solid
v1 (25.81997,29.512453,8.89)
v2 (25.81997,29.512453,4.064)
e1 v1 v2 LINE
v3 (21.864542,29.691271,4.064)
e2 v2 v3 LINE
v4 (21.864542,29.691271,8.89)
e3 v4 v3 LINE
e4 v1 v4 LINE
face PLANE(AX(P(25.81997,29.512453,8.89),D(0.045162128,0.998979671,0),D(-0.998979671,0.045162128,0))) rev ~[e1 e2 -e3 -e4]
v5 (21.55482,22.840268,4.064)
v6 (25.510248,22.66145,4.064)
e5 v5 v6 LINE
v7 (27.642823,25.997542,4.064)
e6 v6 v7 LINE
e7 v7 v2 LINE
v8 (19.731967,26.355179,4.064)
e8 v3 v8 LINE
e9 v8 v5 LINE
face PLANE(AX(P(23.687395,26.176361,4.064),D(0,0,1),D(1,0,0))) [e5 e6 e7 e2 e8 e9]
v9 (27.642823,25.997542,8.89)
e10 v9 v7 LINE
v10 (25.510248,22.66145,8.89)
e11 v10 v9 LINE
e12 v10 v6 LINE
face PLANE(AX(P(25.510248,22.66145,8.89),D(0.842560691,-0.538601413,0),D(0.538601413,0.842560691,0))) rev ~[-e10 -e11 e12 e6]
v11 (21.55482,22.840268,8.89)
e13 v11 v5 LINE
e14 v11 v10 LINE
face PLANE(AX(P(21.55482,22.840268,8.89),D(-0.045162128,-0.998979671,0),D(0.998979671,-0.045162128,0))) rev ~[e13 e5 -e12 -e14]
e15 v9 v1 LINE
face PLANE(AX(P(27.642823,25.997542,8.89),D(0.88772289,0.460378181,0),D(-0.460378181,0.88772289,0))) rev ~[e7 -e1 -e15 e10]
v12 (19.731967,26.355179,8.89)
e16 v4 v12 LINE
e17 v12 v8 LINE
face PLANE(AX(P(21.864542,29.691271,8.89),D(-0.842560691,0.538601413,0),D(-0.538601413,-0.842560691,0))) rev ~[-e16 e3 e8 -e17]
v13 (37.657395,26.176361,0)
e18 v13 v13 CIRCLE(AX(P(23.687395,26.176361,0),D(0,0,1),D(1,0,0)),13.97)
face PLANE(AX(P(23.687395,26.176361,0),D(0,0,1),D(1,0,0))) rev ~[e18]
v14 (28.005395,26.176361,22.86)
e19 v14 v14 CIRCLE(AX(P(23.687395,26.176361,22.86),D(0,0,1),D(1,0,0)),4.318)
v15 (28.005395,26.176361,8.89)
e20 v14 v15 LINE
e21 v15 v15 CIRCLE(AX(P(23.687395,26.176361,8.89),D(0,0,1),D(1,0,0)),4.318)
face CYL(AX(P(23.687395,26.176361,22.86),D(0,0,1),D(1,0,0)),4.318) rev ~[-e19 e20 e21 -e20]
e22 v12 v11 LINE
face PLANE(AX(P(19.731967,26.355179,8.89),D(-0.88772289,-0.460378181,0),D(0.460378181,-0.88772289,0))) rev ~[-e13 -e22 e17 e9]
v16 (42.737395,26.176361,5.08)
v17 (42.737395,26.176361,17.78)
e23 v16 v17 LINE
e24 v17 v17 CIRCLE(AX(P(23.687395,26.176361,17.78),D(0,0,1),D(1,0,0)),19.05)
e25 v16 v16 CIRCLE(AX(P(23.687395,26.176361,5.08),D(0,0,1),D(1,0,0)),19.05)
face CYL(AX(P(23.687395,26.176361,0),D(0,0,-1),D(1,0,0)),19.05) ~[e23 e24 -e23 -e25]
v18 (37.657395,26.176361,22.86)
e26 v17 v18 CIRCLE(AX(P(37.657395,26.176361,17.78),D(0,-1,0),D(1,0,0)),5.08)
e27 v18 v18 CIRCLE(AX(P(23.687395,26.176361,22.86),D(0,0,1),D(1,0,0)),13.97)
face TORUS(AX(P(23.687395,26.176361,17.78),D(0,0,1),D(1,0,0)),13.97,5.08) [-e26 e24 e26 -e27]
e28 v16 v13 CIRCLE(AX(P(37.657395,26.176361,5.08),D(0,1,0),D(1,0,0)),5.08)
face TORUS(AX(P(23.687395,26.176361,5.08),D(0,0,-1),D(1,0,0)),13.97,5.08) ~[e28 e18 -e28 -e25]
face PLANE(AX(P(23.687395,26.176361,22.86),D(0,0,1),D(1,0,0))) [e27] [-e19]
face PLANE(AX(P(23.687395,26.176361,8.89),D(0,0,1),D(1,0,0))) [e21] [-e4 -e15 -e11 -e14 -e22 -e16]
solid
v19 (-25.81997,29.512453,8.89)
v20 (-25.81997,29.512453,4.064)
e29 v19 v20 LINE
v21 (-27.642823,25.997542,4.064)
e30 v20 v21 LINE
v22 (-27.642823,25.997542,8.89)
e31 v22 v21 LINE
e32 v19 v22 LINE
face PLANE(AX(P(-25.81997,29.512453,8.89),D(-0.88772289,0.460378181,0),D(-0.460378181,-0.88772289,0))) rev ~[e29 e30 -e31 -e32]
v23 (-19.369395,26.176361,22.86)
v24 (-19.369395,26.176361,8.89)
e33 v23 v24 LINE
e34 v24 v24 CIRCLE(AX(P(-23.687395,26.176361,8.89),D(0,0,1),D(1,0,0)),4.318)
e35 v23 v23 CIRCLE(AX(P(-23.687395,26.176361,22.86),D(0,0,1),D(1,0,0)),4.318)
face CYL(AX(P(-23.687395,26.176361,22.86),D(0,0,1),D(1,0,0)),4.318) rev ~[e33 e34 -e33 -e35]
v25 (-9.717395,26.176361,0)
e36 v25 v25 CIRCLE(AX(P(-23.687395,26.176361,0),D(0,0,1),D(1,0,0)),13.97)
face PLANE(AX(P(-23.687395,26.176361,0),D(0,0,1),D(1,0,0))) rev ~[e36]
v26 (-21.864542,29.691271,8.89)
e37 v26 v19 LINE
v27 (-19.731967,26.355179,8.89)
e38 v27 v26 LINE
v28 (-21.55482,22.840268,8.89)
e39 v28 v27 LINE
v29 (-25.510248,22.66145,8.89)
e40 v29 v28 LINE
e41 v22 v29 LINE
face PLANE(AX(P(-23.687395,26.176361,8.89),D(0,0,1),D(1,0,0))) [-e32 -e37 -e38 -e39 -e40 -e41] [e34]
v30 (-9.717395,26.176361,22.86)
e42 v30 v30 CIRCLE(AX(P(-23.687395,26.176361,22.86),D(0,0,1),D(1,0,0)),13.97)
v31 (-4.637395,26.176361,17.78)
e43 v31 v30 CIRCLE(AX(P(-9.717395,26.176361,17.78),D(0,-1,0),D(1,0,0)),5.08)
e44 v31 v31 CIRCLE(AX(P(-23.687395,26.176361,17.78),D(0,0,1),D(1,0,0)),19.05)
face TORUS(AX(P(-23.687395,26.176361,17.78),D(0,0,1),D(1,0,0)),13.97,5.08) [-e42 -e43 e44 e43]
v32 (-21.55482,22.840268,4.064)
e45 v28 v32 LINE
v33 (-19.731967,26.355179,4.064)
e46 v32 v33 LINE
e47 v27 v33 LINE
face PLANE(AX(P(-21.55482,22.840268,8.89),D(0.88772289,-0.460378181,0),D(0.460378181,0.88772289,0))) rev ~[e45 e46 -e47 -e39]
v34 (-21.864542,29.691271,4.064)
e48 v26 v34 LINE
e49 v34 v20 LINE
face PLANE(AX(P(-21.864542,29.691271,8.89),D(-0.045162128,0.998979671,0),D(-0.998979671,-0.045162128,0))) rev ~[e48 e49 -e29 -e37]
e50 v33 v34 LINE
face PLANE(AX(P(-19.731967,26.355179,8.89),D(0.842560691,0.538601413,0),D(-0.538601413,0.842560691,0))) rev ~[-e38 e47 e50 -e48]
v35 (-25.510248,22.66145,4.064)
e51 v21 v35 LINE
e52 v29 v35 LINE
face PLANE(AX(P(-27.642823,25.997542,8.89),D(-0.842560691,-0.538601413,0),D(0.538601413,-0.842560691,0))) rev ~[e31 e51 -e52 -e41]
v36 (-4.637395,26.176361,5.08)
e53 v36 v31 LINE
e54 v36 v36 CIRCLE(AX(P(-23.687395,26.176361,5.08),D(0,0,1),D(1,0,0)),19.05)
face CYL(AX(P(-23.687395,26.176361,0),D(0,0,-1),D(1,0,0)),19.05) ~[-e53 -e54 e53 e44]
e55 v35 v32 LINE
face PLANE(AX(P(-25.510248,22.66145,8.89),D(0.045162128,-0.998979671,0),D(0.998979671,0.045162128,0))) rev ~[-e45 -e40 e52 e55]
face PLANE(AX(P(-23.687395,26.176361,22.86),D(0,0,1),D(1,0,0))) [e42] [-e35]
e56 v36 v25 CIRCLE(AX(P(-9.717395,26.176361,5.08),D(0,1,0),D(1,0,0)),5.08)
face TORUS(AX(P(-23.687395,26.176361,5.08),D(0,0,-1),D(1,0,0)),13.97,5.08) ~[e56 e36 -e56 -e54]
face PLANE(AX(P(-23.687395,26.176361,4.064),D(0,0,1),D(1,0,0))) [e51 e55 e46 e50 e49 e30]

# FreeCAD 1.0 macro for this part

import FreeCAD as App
import Part
import Sketcher

V = App.Vector
Q = App.Units.Quantity


def edges_at(feature, points):
    """Names of the edges that pass closest to the given points."""
    edges = feature.Shape.Edges
    near = lambda p: min(range(len(edges)), key=lambda i: edges[i].distToShape(Part.Vertex(*p))[0])
    return sorted({f"Edge{near(p) + 1}" for p in points})

doc = App.newDocument("Part")
body = doc.addObject("PartDesign::Body", "Body")
body.AllowCompound = True

sketch1 = body.newObject("Sketcher::SketchObject", "Sketch")
sketch1.AttachmentSupport = (doc.getObject("XY_Plane"), [""])
sketch1.MapMode = "FlatFace"
sketch1.addGeometry(Part.Circle(V(-24, 26, 0), V(0, 0, 1), 19), False)
sketch1.addGeometry(Part.Circle(V(24, 26, 0), V(0, 0, 1), 19), False)
sketch1.addConstraint(Sketcher.Constraint("Equal", 0, 1))
sketch1.addConstraint(Sketcher.Constraint("Symmetric", 0, 3, 1, 3, -2))
sketch1.addConstraint(Sketcher.Constraint("Diameter", 0, Q("1.5 in")))
sketch1.addConstraint(Sketcher.Constraint("DistanceY", -1, 1, 0, 3, Q("26.176361 mm")))
sketch1.addConstraint(Sketcher.Constraint("DistanceX", 0, 3, 1, 3, Q("47.37479 mm")))
pad1 = body.newObject("PartDesign::Pad", "Pad")
pad1.Profile = sketch1
pad1.Length = Q("0.9 in")

sketch2 = body.newObject("Sketcher::SketchObject", "Sketch001")
sketch2.AttachmentSupport = (doc.getObject("XY_Plane"), [""])
sketch2.MapMode = "FlatFace"
sketch2.AttachmentOffset = App.Placement(V(0, 0, 0.9 * 25.4), App.Rotation())
sketch2.addGeometry(Part.Circle(V(-23.7, 26.2, 0), V(0, 0, 1), 4.3), False)
sketch2.addGeometry(Part.Circle(V(23.7, 26.2, 0), V(0, 0, 1), 4.3), False)
sketch2.addConstraint(Sketcher.Constraint("Equal", 0, 1))
sketch2.addConstraint(Sketcher.Constraint("Symmetric", 0, 3, 1, 3, -2))
sketch2.addConstraint(Sketcher.Constraint("Diameter", 0, Q("0.34 in")))
sketch2.addConstraint(Sketcher.Constraint("DistanceY", -1, 1, 0, 3, Q("26.176361 mm")))
sketch2.addConstraint(Sketcher.Constraint("DistanceX", 0, 3, 1, 3, Q("47.37479 mm")))
pocket1 = body.newObject("PartDesign::Pocket", "Pocket")
pocket1.Profile = sketch2
pocket1.Length = Q("0.55 in")

sketch3 = body.newObject("Sketcher::SketchObject", "Sketch002")
sketch3.AttachmentSupport = (doc.getObject("XY_Plane"), [""])
sketch3.MapMode = "FlatFace"
sketch3.AttachmentOffset = App.Placement(V(0, 0, 0.35 * 25.4), App.Rotation())
sketch3.addGeometry(Part.LineSegment(V(-21.55482, 22.840268, 0), V(-19.731967, 26.355179, 0)), False)
sketch3.addGeometry(Part.LineSegment(V(-19.731967, 26.355179, 0), V(-21.864542, 29.691271, 0)), False)
sketch3.addGeometry(Part.LineSegment(V(-21.864542, 29.691271, 0), V(-25.81997, 29.512453, 0)), False)
sketch3.addGeometry(Part.LineSegment(V(-25.81997, 29.512453, 0), V(-27.642823, 25.997542, 0)), False)
sketch3.addGeometry(Part.LineSegment(V(-27.642823, 25.997542, 0), V(-25.510248, 22.66145, 0)), False)
sketch3.addGeometry(Part.LineSegment(V(-25.510248, 22.66145, 0), V(-21.55482, 22.840268, 0)), False)
sketch3.addGeometry(Part.LineSegment(V(25.81997, 29.512453, 0), V(21.864542, 29.691271, 0)), False)
sketch3.addGeometry(Part.LineSegment(V(21.864542, 29.691271, 0), V(19.731967, 26.355179, 0)), False)
sketch3.addGeometry(Part.LineSegment(V(19.731967, 26.355179, 0), V(21.55482, 22.840268, 0)), False)
sketch3.addGeometry(Part.LineSegment(V(21.55482, 22.840268, 0), V(25.510248, 22.66145, 0)), False)
sketch3.addGeometry(Part.LineSegment(V(25.510248, 22.66145, 0), V(27.642823, 25.997542, 0)), False)
sketch3.addGeometry(Part.LineSegment(V(27.642823, 25.997542, 0), V(25.81997, 29.512453, 0)), False)
sketch3.addConstraint(Sketcher.Constraint("Coincident", 0, 2, 1, 1))
sketch3.addConstraint(Sketcher.Constraint("Coincident", 1, 2, 2, 1))
sketch3.addConstraint(Sketcher.Constraint("Coincident", 2, 2, 3, 1))
sketch3.addConstraint(Sketcher.Constraint("Coincident", 3, 2, 4, 1))
sketch3.addConstraint(Sketcher.Constraint("Coincident", 4, 2, 5, 1))
sketch3.addConstraint(Sketcher.Constraint("Coincident", 5, 2, 0, 1))
sketch3.addConstraint(Sketcher.Constraint("Coincident", 6, 2, 7, 1))
sketch3.addConstraint(Sketcher.Constraint("Coincident", 7, 2, 8, 1))
sketch3.addConstraint(Sketcher.Constraint("Coincident", 8, 2, 9, 1))
sketch3.addConstraint(Sketcher.Constraint("Coincident", 9, 2, 10, 1))
sketch3.addConstraint(Sketcher.Constraint("Coincident", 10, 2, 11, 1))
sketch3.addConstraint(Sketcher.Constraint("Coincident", 11, 2, 6, 1))
sketch3.addConstraint(Sketcher.Constraint("DistanceX", 3, 2, -1, 1, Q("1.0883001 in")))
sketch3.addConstraint(Sketcher.Constraint("DistanceX", -1, 1, 10, 2, Q("1.0883001 in")))
sketch3.addConstraint(Sketcher.Constraint("Distance", 0, Q("3.959469 mm")))
sketch3.addConstraint(Sketcher.Constraint("Distance", 3, Q("3.959469 mm")))
sketch3.addConstraint(Sketcher.Constraint("Distance", 8, Q("3.959469 mm")))
sketch3.addConstraint(Sketcher.Constraint("Distance", 11, Q("3.959469 mm")))
sketch3.addConstraint(Sketcher.Constraint("DistanceY", -1, 1, 0, 2, Q("26.355179 mm")))
sketch3.addConstraint(Sketcher.Constraint("DistanceX", 1, 2, -1, 1, Q("21.864542 mm")))
sketch3.addConstraint(Sketcher.Constraint("DistanceY", -1, 1, 1, 2, Q("29.691271 mm")))
sketch3.addConstraint(Sketcher.Constraint("DistanceX", 2, 2, -1, 1, Q("25.81997 mm")))
sketch3.addConstraint(Sketcher.Constraint("DistanceY", -1, 1, 3, 2, Q("25.997542 mm")))
sketch3.addConstraint(Sketcher.Constraint("DistanceX", 4, 2, -1, 1, Q("25.510248 mm")))
sketch3.addConstraint(Sketcher.Constraint("DistanceY", -1, 1, 4, 2, Q("22.66145 mm")))
sketch3.addConstraint(Sketcher.Constraint("DistanceX", 5, 2, -1, 1, Q("21.55482 mm")))
sketch3.addConstraint(Sketcher.Constraint("DistanceX", -1, 1, 6, 2, Q("21.864542 mm")))
sketch3.addConstraint(Sketcher.Constraint("DistanceY", -1, 1, 6, 2, Q("29.691271 mm")))
sketch3.addConstraint(Sketcher.Constraint("DistanceY", -1, 1, 7, 2, Q("26.355179 mm")))
sketch3.addConstraint(Sketcher.Constraint("DistanceX", -1, 1, 8, 2, Q("21.55482 mm")))
sketch3.addConstraint(Sketcher.Constraint("DistanceX", -1, 1, 9, 2, Q("25.510248 mm")))
sketch3.addConstraint(Sketcher.Constraint("DistanceY", -1, 1, 9, 2, Q("22.66145 mm")))
sketch3.addConstraint(Sketcher.Constraint("DistanceY", -1, 1, 10, 2, Q("25.997542 mm")))
sketch3.addConstraint(Sketcher.Constraint("DistanceX", -1, 1, 11, 2, Q("25.81997 mm")))
sketch3.addConstraint(Sketcher.Constraint("DistanceX", 4, 2, 0, 2, Q("5.778281 mm")))
sketch3.addConstraint(Sketcher.Constraint("DistanceX", 1, 2, 7, 2, Q("41.596509 mm")))
pocket2 = body.newObject("PartDesign::Pocket", "Pocket001")
pocket2.Profile = sketch3
pocket2.Length = Q("0.19 in")
doc.recompute()

fillet = body.newObject("PartDesign::Fillet", "Fillet")
fillet.Base = (pocket2, edges_at(pocket2, [
    (-42.737, 26.176, 0),
    (-4.637, 26.176, 11.43),
    (-42.737, 26.176, 22.86),
    (4.637, 26.176, 0),
    (42.737, 26.176, 11.43),
    (4.637, 26.176, 22.86),
]))
fillet.Radius = Q("0.2 in")

doc.recompute()
